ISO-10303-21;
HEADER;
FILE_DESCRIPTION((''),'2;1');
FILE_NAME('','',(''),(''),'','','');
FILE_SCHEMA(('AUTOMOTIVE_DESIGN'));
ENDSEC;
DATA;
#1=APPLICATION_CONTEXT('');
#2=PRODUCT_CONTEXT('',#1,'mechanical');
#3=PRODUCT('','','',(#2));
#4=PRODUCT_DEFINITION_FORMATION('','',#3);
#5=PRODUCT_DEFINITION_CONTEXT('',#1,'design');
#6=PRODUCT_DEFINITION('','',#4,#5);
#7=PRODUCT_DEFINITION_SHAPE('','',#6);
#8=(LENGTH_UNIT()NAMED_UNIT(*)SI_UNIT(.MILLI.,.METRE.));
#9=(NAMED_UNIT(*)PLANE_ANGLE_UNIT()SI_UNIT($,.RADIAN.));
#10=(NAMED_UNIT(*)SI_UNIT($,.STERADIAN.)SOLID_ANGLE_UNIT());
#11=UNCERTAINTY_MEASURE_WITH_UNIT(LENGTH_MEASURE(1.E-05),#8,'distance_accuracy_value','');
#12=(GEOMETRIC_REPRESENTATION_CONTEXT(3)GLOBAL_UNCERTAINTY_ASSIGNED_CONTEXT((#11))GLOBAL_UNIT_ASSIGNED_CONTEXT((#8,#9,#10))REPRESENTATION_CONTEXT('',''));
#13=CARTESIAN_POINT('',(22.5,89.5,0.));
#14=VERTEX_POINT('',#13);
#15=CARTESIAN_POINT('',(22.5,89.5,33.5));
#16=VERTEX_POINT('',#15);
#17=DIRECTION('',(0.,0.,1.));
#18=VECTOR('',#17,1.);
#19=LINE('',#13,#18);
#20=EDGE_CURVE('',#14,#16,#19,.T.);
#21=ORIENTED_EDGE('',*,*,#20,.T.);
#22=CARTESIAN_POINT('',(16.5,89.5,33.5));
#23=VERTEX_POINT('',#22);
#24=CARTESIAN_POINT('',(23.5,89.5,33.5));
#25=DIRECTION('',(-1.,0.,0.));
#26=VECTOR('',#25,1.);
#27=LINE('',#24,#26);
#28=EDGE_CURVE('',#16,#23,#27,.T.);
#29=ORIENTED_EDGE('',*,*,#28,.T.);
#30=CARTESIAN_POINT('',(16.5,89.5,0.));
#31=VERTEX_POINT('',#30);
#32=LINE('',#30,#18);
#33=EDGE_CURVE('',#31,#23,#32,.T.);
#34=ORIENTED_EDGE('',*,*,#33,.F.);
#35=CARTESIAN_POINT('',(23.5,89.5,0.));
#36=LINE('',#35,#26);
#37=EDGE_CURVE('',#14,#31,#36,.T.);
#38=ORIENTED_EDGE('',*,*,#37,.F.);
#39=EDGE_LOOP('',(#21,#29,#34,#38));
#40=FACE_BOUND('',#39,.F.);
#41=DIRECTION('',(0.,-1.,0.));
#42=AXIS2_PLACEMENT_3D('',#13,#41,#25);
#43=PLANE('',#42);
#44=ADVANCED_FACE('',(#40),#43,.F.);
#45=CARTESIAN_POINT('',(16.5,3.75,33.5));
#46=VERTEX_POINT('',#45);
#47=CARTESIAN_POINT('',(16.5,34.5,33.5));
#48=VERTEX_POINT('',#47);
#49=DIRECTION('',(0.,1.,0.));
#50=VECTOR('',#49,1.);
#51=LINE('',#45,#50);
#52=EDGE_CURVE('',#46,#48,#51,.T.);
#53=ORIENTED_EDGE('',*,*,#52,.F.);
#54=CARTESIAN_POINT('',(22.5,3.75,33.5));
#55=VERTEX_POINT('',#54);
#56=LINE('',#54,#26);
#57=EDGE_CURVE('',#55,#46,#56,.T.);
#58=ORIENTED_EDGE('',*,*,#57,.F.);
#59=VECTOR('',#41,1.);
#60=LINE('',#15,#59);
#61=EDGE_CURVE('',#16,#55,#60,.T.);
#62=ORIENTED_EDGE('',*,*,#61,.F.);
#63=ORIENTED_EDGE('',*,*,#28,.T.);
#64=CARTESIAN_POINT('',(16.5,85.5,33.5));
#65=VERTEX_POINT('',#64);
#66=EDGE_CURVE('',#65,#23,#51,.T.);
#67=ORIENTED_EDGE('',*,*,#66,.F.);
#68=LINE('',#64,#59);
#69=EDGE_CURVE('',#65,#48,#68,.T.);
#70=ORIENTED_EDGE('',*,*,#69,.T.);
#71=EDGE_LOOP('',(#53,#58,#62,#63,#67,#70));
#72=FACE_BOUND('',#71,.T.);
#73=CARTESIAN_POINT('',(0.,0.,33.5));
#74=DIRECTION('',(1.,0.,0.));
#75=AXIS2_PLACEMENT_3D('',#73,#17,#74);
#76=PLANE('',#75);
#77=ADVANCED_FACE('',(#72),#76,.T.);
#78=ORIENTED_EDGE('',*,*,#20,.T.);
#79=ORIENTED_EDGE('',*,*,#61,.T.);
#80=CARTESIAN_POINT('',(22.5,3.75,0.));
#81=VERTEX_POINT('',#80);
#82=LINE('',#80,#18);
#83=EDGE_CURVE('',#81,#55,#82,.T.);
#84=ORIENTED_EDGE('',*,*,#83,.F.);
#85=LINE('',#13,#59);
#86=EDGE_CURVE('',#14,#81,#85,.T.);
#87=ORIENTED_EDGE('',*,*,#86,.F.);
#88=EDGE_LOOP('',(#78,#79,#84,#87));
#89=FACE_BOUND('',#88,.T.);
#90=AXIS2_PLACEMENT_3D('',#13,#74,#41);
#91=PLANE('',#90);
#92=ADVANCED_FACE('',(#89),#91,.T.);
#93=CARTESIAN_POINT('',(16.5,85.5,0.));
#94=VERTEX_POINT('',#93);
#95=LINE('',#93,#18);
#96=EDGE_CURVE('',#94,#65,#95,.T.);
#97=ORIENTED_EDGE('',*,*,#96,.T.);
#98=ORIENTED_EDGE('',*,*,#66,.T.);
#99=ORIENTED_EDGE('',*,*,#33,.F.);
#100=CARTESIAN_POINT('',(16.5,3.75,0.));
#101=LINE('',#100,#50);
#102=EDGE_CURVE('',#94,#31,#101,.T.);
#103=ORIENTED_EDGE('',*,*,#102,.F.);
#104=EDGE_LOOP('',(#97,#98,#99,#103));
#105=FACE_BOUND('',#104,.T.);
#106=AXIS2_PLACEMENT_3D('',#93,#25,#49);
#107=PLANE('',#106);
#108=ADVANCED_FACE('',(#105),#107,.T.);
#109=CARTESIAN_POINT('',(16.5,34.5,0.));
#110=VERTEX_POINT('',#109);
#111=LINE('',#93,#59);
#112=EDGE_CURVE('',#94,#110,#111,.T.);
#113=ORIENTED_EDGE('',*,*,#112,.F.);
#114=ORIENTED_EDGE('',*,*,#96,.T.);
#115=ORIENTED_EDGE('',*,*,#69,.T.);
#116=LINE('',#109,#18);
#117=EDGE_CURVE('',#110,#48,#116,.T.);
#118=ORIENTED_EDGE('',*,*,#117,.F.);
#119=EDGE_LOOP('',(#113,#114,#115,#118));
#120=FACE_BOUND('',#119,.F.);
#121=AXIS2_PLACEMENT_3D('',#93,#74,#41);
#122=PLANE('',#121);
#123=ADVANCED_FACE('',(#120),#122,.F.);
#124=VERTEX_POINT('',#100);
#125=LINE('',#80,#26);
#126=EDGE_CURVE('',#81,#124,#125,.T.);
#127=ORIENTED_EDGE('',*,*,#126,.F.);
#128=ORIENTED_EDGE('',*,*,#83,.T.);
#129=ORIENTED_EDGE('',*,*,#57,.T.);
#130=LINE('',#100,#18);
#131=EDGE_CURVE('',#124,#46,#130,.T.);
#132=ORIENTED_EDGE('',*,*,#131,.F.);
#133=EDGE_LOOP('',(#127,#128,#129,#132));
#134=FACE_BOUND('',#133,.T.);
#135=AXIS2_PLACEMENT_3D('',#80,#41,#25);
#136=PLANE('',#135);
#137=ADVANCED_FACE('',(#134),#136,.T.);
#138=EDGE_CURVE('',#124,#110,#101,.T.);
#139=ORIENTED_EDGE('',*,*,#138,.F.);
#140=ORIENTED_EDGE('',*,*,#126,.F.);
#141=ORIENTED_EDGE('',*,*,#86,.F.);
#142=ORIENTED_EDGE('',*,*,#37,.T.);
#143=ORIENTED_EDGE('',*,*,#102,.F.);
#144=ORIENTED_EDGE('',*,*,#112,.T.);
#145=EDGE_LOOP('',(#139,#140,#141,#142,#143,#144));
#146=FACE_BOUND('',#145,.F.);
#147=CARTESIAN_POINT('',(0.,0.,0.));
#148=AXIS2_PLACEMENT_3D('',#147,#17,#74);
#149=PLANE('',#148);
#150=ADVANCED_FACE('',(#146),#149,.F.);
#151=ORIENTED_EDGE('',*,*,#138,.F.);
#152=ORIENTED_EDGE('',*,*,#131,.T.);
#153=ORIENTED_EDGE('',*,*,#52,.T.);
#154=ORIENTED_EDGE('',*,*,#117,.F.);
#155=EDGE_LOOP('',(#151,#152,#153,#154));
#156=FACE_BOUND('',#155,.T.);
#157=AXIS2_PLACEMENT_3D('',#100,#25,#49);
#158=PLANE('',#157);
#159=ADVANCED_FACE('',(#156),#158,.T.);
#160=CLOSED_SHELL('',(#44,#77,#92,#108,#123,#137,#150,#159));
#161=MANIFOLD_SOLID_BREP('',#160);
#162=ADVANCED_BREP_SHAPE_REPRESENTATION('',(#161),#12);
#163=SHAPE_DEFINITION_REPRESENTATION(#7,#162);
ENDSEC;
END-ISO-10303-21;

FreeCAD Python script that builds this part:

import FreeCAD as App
import Part
import Sketcher


def add_polygon(sketch, points):
    """Adds a closed chain of lines whose ends are joined by coincident constraints."""
    first, n = sketch.GeometryCount, len(points)
    for a, b in zip(points, points[1:] + points[:1]):
        sketch.addGeometry(Part.LineSegment(App.Vector(*a, 0), App.Vector(*b, 0)), False)
    for i in range(n):
        sketch.addConstraint(Sketcher.Constraint("Coincident", first + i, 2, first + (i + 1) % n, 1))

doc = App.newDocument("Part")
body = doc.addObject("PartDesign::Body", "Body")

# Sketch on XY plane
sketch1 = doc.addObject("Sketcher::SketchObject", "Sketch")
body.addObject(sketch1)
sketch1.AttachmentSupport = (doc.XY_Plane, [""])
sketch1.MapMode = "FlatFace"
add_polygon(sketch1, [(22, 4), (22, 90), (16, 90), (16, 4)])  # lines 0-3
sketch1.addConstraint(Sketcher.Constraint("Vertical", 0))
sketch1.addConstraint(Sketcher.Constraint("Horizontal", 1))
sketch1.addConstraint(Sketcher.Constraint("Vertical", 2))
sketch1.addConstraint(Sketcher.Constraint("Horizontal", 3))
sketch1.addConstraint(Sketcher.Constraint("DistanceX", 1, 2, 1, 1, 6.0))
sketch1.addConstraint(Sketcher.Constraint("DistanceY", 0, 1, 0, 2, 85.75))
sketch1.addConstraint(Sketcher.Constraint("DistanceX", -1, 1, 0, 2, 22.5))
sketch1.addConstraint(Sketcher.Constraint("DistanceY", -1, 1, 0, 2, 89.5))
pad1 = doc.addObject("PartDesign::Pad", "Pad")
body.addObject(pad1)
pad1.Profile = sketch1
pad1.Length = 33.5

doc.recompute()
